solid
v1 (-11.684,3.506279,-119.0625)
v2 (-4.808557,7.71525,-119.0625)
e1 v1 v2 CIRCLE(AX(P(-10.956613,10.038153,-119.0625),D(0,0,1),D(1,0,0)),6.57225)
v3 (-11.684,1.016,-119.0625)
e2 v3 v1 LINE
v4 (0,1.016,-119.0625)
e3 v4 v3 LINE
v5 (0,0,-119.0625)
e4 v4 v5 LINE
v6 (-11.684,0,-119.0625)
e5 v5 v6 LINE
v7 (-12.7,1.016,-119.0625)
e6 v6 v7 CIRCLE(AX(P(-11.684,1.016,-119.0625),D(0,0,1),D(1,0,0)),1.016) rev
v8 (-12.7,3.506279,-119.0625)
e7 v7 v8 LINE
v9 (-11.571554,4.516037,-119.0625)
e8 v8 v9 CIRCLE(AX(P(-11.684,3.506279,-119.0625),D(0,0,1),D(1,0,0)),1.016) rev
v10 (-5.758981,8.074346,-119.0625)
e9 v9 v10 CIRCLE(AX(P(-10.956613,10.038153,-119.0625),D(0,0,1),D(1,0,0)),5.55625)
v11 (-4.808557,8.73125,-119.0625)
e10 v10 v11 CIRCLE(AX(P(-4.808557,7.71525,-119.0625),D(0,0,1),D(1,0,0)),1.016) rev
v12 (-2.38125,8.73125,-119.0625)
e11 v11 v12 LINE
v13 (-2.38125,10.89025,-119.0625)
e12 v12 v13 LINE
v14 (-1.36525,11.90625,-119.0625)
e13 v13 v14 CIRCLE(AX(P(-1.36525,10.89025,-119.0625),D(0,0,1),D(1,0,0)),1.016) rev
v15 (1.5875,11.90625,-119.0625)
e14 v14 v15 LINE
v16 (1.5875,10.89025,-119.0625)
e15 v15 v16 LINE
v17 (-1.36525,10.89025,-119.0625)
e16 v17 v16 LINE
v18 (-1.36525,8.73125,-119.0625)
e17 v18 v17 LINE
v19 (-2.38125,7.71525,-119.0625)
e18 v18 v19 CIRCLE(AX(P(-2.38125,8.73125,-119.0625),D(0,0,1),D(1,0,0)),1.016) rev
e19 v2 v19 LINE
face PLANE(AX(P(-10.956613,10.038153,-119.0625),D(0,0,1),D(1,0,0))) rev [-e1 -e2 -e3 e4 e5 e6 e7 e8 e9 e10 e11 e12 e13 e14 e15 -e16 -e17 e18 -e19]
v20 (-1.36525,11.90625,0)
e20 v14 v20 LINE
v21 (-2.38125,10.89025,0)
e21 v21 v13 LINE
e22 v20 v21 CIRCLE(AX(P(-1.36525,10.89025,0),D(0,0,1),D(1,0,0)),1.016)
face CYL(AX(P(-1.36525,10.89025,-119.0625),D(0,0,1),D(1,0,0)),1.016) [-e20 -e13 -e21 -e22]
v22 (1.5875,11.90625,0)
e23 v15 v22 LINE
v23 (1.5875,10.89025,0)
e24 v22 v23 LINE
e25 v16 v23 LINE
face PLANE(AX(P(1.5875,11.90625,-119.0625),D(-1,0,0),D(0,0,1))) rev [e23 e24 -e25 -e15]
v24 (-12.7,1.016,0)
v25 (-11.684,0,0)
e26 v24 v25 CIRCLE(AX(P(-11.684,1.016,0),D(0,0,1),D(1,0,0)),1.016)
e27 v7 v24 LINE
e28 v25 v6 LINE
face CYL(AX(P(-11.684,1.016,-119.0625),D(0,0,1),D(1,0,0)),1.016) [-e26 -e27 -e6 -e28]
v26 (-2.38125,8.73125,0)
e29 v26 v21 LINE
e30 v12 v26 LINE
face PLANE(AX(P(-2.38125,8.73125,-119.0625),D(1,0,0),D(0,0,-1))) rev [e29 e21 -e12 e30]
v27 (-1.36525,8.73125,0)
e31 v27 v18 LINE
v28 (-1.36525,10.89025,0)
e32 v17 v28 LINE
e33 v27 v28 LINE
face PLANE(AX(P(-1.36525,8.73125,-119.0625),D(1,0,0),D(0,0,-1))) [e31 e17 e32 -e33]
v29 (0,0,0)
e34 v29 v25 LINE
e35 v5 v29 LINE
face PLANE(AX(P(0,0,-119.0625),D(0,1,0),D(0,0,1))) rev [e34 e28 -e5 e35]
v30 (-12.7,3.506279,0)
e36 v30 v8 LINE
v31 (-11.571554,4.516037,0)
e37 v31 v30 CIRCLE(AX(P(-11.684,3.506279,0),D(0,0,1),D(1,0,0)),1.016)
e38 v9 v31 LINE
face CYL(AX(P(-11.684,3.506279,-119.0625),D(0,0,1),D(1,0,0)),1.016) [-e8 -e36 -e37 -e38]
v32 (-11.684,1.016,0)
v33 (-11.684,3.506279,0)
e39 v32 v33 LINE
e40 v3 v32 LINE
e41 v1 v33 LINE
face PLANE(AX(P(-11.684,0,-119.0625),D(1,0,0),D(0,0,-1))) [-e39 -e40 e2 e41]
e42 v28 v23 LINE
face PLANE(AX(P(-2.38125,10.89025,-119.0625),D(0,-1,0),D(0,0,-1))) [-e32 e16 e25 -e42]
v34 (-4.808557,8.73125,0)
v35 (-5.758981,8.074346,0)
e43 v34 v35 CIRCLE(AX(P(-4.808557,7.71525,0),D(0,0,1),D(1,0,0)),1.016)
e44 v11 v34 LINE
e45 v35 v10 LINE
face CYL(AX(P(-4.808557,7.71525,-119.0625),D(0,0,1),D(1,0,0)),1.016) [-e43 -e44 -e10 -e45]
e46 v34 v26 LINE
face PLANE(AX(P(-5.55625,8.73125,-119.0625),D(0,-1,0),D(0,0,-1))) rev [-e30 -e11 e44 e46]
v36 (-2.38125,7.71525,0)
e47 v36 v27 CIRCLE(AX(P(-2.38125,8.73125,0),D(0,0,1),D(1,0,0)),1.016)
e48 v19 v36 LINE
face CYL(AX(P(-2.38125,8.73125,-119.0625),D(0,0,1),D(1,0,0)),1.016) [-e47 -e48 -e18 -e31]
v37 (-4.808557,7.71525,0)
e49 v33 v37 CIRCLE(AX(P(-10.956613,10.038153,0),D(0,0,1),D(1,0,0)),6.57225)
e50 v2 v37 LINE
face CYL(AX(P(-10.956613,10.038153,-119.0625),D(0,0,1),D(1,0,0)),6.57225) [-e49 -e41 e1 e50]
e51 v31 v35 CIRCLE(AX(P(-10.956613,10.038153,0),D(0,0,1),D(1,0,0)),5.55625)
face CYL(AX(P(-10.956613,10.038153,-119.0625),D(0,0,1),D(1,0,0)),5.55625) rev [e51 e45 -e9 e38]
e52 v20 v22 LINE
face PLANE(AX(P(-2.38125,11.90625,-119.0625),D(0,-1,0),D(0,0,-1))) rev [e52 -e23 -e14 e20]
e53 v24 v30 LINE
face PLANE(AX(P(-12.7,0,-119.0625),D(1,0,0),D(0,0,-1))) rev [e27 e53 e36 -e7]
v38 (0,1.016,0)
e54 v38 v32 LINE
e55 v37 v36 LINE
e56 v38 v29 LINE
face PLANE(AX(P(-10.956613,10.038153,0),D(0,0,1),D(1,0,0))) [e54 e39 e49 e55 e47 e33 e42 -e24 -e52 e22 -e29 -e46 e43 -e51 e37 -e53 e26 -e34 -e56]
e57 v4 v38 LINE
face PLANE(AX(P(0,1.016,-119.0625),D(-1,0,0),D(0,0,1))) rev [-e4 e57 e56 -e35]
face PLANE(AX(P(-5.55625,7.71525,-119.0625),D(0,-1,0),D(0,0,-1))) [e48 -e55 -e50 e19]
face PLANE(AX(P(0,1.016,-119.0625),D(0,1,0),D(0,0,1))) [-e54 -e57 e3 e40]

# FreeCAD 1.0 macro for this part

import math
import FreeCAD as App
import Part
import Sketcher
Q = App.Units.Quantity


def edges_at(feature, points):
    """Names of the edges that pass closest to the given points."""
    edges = feature.Shape.Edges
    near = lambda p: min(range(len(edges)), key=lambda i: edges[i].distToShape(Part.Vertex(*p))[0])
    return sorted({f"Edge{near(p) + 1}" for p in points})

doc = App.newDocument("Part")
body = doc.addObject("PartDesign::Body", "Body")

sketch1 = body.newObject("Sketcher::SketchObject", "Sketch")
sketch1.AttachmentSupport = (doc.getObject("XY_Plane"), [""])
sketch1.MapMode = "FlatFace"
sketch1.addGeometry([
    Part.LineSegment(App.Vector(-12.7, 0, 0), App.Vector(0, 0, 0)),
    Part.LineSegment(App.Vector(0, 0, 0), App.Vector(0, 1.016, 0)),
    Part.LineSegment(App.Vector(0, 1.016, 0), App.Vector(-11.684, 1.016, 0)),
    Part.LineSegment(App.Vector(-11.684, 1.016, 0), App.Vector(-11.684, 3.506279, 0)),
    Part.ArcOfCircle(Part.Circle(App.Vector(-10.956613, 10.038153, 0), App.Vector(0, 0, 1), 6.57225), math.radians(-96.354258), math.radians(-20.697931)),
    Part.LineSegment(App.Vector(-4.808557, 7.71525, 0), App.Vector(-1.36525, 7.71525, 0)),
    Part.LineSegment(App.Vector(-1.36525, 7.71525, 0), App.Vector(-1.36525, 10.89025, 0)),
    Part.LineSegment(App.Vector(-1.36525, 10.89025, 0), App.Vector(1.5875, 10.89025, 0)),
    Part.LineSegment(App.Vector(1.5875, 10.89025, 0), App.Vector(1.5875, 11.90625, 0)),
    Part.LineSegment(App.Vector(1.5875, 11.90625, 0), App.Vector(-2.38125, 11.90625, 0)),
    Part.LineSegment(App.Vector(-2.38125, 11.90625, 0), App.Vector(-2.38125, 8.73125, 0)),
    Part.LineSegment(App.Vector(-2.38125, 8.73125, 0), App.Vector(-5.55625, 8.73125, 0)),
    Part.ArcOfCircle(Part.Circle(App.Vector(-10.956613, 10.038153, 0), App.Vector(0, 0, 1), 5.55625), math.radians(-108.286604), math.radians(-13.604187)),
    Part.LineSegment(App.Vector(-12.7, 4.7625, 0), App.Vector(-12.7, 0, 0)),
], False)
sketch1.addConstraint([
    Sketcher.Constraint("Coincident", 0, 2, 1, 1),
    Sketcher.Constraint("Coincident", 1, 2, 2, 1),
    Sketcher.Constraint("Coincident", 2, 2, 3, 1),
    Sketcher.Constraint("Coincident", 3, 2, 4, 1),
    Sketcher.Constraint("Coincident", 4, 2, 5, 1),
    Sketcher.Constraint("Coincident", 5, 2, 6, 1),
    Sketcher.Constraint("Coincident", 6, 2, 7, 1),
    Sketcher.Constraint("Coincident", 7, 2, 8, 1),
    Sketcher.Constraint("Coincident", 8, 2, 9, 1),
    Sketcher.Constraint("Coincident", 9, 2, 10, 1),
    Sketcher.Constraint("Coincident", 10, 2, 11, 1),
    Sketcher.Constraint("Coincident", 11, 2, 12, 2),
    Sketcher.Constraint("Coincident", 12, 1, 13, 1),
    Sketcher.Constraint("Coincident", 13, 2, 0, 1),
    Sketcher.Constraint("Horizontal", 0),
    Sketcher.Constraint("Vertical", 1),
    Sketcher.Constraint("Horizontal", 2),
    Sketcher.Constraint("Vertical", 3),
    Sketcher.Constraint("Horizontal", 5),
    Sketcher.Constraint("Vertical", 6),
    Sketcher.Constraint("Horizontal", 7),
    Sketcher.Constraint("Vertical", 8),
    Sketcher.Constraint("Horizontal", 9),
    Sketcher.Constraint("Vertical", 10),
    Sketcher.Constraint("Horizontal", 11),
    Sketcher.Constraint("Vertical", 13),
    Sketcher.Constraint("Coincident", 0, 2, -1, 1),
    Sketcher.Constraint("Coincident", 12, 3, 4, 3),
    Sketcher.Constraint("Equal", 11, 6),
    Sketcher.Constraint("Equal", 1, 8),
    Sketcher.Constraint("Equal", 6, 10),
    Sketcher.Constraint("DistanceX", 0, 1, 0, 2, Q("0.5 in")),
    Sketcher.Constraint("Radius", 12, Q("0.21875 in")),
    Sketcher.Constraint("DistanceX", 2, 2, 2, 1, Q("0.46 in")),
    Sketcher.Constraint("DistanceY", 1, 1, 1, 2, Q("0.04 in")),
    Sketcher.Constraint("DistanceX", 9, 2, 9, 1, Q("0.15625 in")),
    Sketcher.Constraint("DistanceX", 11, 2, 11, 1, Q("0.125 in")),
    Sketcher.Constraint("DistanceY", 13, 2, 13, 1, Q("0.1875 in")),
    Sketcher.Constraint("DistanceX", 9, 2, 6, 2, Q("0.04 in")),
    Sketcher.Constraint("DistanceX", -1, 1, 7, 2, Q("0.0625 in")),
    Sketcher.Constraint("DistanceY", -1, 1, 8, 2, Q("0.46875 in")),
    Sketcher.Constraint("Radius", 4, 6.57225),
])
pad1 = body.newObject("PartDesign::Pad", "Pad")
pad1.Profile = sketch1
pad1.Length = Q("4.6875 in")
pad1.Reversed = True
doc.recompute()

fillet = body.newObject("PartDesign::Fillet", "Fillet")
fillet.Base = (pad1, edges_at(pad1, [
    (-1.365, 7.715, -59.531),
    (-12.7, 0, -59.531),
    (-12.7, 4.763, -59.531),
    (-5.556, 8.731, -59.531),
    (-2.381, 11.906, -59.531),
]))
fillet.Radius = Q("0.04 in")

doc.recompute()
